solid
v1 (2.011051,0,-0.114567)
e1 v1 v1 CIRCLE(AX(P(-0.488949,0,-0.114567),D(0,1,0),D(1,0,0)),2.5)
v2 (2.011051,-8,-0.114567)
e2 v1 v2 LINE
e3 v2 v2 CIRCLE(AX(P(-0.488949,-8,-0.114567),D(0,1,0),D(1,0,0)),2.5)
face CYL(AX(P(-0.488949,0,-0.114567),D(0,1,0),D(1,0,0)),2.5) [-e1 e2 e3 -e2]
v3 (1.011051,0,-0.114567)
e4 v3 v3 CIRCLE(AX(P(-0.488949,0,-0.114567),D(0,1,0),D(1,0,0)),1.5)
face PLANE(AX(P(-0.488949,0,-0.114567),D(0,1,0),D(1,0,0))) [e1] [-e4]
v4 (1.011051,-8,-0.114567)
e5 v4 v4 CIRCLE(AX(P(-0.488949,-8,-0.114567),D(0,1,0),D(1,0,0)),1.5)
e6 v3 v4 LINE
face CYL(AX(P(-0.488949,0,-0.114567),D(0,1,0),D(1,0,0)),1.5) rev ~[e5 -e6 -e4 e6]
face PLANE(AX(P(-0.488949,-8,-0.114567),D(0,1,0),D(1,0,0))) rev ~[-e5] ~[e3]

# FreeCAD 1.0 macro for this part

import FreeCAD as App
import Part
import Sketcher
from FreeCAD import Vector
Q = App.Units.Quantity

doc = App.newDocument("Part")
body = doc.addObject("PartDesign::Body", "Body")

# Sketch on XZ plane
sketch1 = body.newObject("Sketcher::SketchObject", "Sketch")
sketch1.AttachmentSupport = (doc.getObject("XZ_Plane"), [""])
sketch1.MapMode = "FlatFace"
sketch1.addGeometry([
    Part.Circle(Vector(-0.488949, -0.114567, 0), Vector(0, 0, 1), 2.5),
    Part.Circle(Vector(-0.488949, -0.114567, 0), Vector(0, 0, 1), 1.5),
], False)
sketch1.addConstraint([
    Sketcher.Constraint("Coincident", 1, 3, 0, 3),
    Sketcher.Constraint("Diameter", 0, Q("5 mm")),
    Sketcher.Constraint("Diameter", 1, Q("3 mm")),
    Sketcher.Constraint("DistanceX", 0, 3, -1, 1, Q("0.488949 mm")),
    Sketcher.Constraint("DistanceY", 0, 3, -1, 1, Q("0.114567 mm")),
])
pad1 = body.newObject("PartDesign::Pad", "Pad")
pad1.Profile = sketch1
pad1.Length = 8

doc.recompute()
